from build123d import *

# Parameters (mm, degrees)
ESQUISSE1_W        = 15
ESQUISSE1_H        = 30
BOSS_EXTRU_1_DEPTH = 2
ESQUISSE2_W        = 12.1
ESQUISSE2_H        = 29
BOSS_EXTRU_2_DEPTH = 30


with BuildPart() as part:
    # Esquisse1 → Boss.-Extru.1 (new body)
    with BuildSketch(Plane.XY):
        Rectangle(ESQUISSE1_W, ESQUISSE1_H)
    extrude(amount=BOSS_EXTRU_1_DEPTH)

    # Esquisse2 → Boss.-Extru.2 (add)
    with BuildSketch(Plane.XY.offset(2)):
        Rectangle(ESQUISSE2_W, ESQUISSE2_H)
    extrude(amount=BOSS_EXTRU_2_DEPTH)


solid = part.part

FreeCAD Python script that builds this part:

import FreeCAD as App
import Part
import Sketcher
from FreeCAD import Vector


def add_polygon(sketch, points):
    """Adds a closed chain of lines whose ends are joined by coincident constraints."""
    first, n = sketch.GeometryCount, len(points)
    for a, b in zip(points, points[1:] + points[:1]):
        sketch.addGeometry(Part.LineSegment(App.Vector(*a, 0), App.Vector(*b, 0)), False)
    for i in range(n):
        sketch.addConstraint(Sketcher.Constraint("Coincident", first + i, 2, first + (i + 1) % n, 1))

doc = App.newDocument("Part")
body = doc.addObject("PartDesign::Body", "Body")

# Sketch on XY plane
sketch1 = doc.addObject("Sketcher::SketchObject", "Sketch")
body.addObject(sketch1)
sketch1.AttachmentSupport = (doc.XY_Plane, [""])
sketch1.MapMode = "FlatFace"
add_polygon(sketch1, [(-8, 15), (-8, -15), (8, -15), (8, 15)])  # lines 0-3
sketch1.addConstraint([
    Sketcher.Constraint("Vertical", 0),
    Sketcher.Constraint("Horizontal", 1),
    Sketcher.Constraint("Vertical", 2),
    Sketcher.Constraint("Horizontal", 3),
    Sketcher.Constraint("Symmetric", 0, 2, 2, 2, -1, 1),
    Sketcher.Constraint("DistanceX", 1, 1, 1, 2, 15.0),
    Sketcher.Constraint("DistanceY", 0, 2, 0, 1, 30.0),
])
pad1 = doc.addObject("PartDesign::Pad", "Pad")
body.addObject(pad1)
pad1.Profile = sketch1
pad1.Length = 2

# Sketch on XY plane
sketch2 = doc.addObject("Sketcher::SketchObject", "Sketch001")
body.addObject(sketch2)
sketch2.AttachmentSupport = (doc.XY_Plane, [""])
sketch2.MapMode = "FlatFace"
sketch2.AttachmentOffset = App.Placement(Vector(0, 0, 2), App.Rotation())
add_polygon(sketch2, [(-6, 14), (-6, -14), (6, -14), (6, 14)])  # lines 0-3
sketch2.addConstraint([
    Sketcher.Constraint("Vertical", 0),
    Sketcher.Constraint("Horizontal", 1),
    Sketcher.Constraint("Vertical", 2),
    Sketcher.Constraint("Horizontal", 3),
    Sketcher.Constraint("Symmetric", 0, 2, 2, 2, -1, 1),
    Sketcher.Constraint("DistanceY", 0, 2, 0, 1, 29.0),
    Sketcher.Constraint("DistanceX", 1, 1, 1, 2, 12.1),
])
pad2 = doc.addObject("PartDesign::Pad", "Pad001")
body.addObject(pad2)
pad2.Profile = sketch2
pad2.Length = 30

doc.recompute()
